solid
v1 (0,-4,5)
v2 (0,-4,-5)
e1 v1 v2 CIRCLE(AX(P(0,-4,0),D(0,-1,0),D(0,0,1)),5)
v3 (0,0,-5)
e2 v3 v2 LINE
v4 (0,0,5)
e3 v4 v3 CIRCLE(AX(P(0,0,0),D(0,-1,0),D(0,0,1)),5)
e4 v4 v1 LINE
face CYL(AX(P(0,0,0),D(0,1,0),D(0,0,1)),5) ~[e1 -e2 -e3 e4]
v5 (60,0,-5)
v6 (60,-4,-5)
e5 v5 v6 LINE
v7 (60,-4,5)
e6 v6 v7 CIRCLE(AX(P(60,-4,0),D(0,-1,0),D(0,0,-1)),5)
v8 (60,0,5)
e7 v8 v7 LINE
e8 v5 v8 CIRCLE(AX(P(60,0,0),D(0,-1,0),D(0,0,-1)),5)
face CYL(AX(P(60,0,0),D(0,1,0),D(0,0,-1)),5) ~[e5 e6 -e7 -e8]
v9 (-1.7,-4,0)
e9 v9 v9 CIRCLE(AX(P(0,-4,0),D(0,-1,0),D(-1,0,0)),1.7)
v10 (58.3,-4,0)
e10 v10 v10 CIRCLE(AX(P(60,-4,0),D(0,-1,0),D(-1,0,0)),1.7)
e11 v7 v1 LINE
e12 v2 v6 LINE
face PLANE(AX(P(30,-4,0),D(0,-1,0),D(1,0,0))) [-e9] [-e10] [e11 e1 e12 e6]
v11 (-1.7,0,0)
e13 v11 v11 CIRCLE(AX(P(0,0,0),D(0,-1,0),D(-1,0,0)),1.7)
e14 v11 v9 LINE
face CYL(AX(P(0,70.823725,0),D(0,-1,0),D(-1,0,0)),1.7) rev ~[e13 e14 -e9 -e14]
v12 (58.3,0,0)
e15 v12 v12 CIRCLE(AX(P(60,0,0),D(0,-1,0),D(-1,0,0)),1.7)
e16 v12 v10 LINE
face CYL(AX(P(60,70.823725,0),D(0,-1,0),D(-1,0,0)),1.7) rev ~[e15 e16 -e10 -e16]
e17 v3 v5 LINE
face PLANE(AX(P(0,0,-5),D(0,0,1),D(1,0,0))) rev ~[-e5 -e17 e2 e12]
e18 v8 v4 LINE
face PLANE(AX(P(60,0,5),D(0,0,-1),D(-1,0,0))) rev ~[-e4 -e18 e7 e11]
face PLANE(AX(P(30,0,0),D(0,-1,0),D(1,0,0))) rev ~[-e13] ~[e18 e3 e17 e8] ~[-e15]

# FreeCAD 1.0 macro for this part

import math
import FreeCAD as App
import Part
import Sketcher
from FreeCAD import Vector

doc = App.newDocument("Part")
body = doc.addObject("PartDesign::Body", "Body")

sketch1 = body.newObject("Sketcher::SketchObject", "Sketch")
sketch1.AttachmentSupport = (doc.getObject("XZ_Plane"), [""])
sketch1.MapMode = "FlatFace"
sketch1.addGeometry([
    Part.LineSegment(Vector(60, 5, 0), Vector(0, 5, 0)),
    Part.ArcOfCircle(Part.Circle(Vector(0, 0, 0), Vector(0, 0, 1), 5), math.radians(90), math.radians(270)),
    Part.LineSegment(Vector(0, -5, 0), Vector(60, -5, 0)),
    Part.ArcOfCircle(Part.Circle(Vector(60, 0, 0), Vector(0, 0, 1), 5), math.radians(-90), math.radians(90)),
], False)
sketch1.addConstraint([
    Sketcher.Constraint("Tangent", 0, 2, 1, 1),
    Sketcher.Constraint("Tangent", 1, 2, 2, 1),
    Sketcher.Constraint("Tangent", 2, 2, 3, 1),
    Sketcher.Constraint("Tangent", 3, 2, 0, 1),
    Sketcher.Constraint("Horizontal", 0),
    Sketcher.Constraint("Horizontal", 2),
    Sketcher.Constraint("Coincident", 1, 3, -1, 1),
    Sketcher.Constraint("Radius", 1, 5.0),
    Sketcher.Constraint("DistanceX", 0, 2, 0, 1, 60.0),
])
pad1 = body.newObject("PartDesign::Pad", "Pad")
pad1.Profile = sketch1
pad1.Length = 4

sketch2 = body.newObject("Sketcher::SketchObject", "Sketch001")
sketch2.AttachmentSupport = (doc.getObject("XZ_Plane"), [""])
sketch2.MapMode = "FlatFace"
sketch2.addGeometry([
    Part.Circle(Vector(0, 0, 0), Vector(0, 0, 1), 1.7),
    Part.Circle(Vector(60, 0, 0), Vector(0, 0, 1), 1.7),
], False)
sketch2.addConstraint([
    Sketcher.Constraint("Coincident", 0, 3, -1, 1),
    Sketcher.Constraint("Equal", 0, 1),
    Sketcher.Constraint("PointOnObject", 1, 3, -1),
    Sketcher.Constraint("Diameter", 0, 3.4),
    Sketcher.Constraint("DistanceX", -1, 1, 1, 3, 60.0),
])
doc.recompute()
hole = body.newObject("PartDesign::Hole", "Hole")
hole.Profile = sketch2
hole.ThreadType = "None"
hole.Diameter = 3.4
hole.DepthType = "ThroughAll"
hole.Reversed = True

doc.recompute()
